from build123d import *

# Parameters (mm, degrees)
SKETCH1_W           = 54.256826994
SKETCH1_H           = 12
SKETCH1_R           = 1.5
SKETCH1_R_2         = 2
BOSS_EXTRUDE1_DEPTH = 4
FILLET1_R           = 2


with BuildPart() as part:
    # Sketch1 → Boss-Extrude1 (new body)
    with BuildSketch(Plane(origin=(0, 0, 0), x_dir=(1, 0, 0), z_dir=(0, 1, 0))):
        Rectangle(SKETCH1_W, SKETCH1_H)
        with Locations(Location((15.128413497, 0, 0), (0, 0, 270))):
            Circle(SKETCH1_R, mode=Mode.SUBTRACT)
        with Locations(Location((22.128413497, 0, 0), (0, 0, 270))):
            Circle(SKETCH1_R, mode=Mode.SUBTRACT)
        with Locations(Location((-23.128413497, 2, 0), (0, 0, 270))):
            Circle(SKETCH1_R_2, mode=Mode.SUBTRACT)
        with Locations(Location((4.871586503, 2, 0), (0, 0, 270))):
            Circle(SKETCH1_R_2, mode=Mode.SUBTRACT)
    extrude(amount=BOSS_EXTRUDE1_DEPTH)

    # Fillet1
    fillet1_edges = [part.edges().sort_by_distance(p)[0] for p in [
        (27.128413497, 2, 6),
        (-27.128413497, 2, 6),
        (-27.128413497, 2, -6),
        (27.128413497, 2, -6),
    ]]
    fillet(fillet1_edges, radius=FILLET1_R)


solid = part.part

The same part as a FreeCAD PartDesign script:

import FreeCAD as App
import Part
import Sketcher
from FreeCAD import Vector


def edges_at(feature, points):
    """Names of the edges that pass closest to the given points."""
    edges = feature.Shape.Edges
    near = lambda p: min(range(len(edges)), key=lambda i: edges[i].distToShape(Part.Vertex(*p))[0])
    return sorted({f"Edge{near(p) + 1}" for p in points})


def add_polygon(sketch, points):
    """Adds a closed chain of lines whose ends are joined by coincident constraints."""
    first, n = sketch.GeometryCount, len(points)
    for a, b in zip(points, points[1:] + points[:1]):
        sketch.addGeometry(Part.LineSegment(App.Vector(*a, 0), App.Vector(*b, 0)), False)
    for i in range(n):
        sketch.addConstraint(Sketcher.Constraint("Coincident", first + i, 2, first + (i + 1) % n, 1))

doc = App.newDocument("Part")
params = doc.addObject("Spreadsheet::Sheet", "Params")
for row, (alias, value) in enumerate([
    ("sketch1_diameter", "3 mm"),
    ("sketch1_diameter2", "4 mm"),
    ("sketch1_height", "12 mm"),
    ("pad1_length", "4 mm"),
    ("fillet_radius", "2 mm"),
], start=1):
    params.set(f"A{row}", alias)
    params.set(f"B{row}", "=" + value)
    params.setAlias(f"B{row}", alias)

body = doc.addObject("PartDesign::Body", "Body")

# Sketch on XZ plane
sketch1 = body.newObject("Sketcher::SketchObject", "Sketch")
sketch1.AttachmentSupport = (doc.getObject("XZ_Plane"), [""])
sketch1.MapMode = "FlatFace"
add_polygon(sketch1, [(-27.1, -6), (-27.1, 6), (27.1, 6), (27.1, -6)])  # lines 0-3
sketch1.addGeometry(Part.Circle(Vector(15.1, 0, 0), Vector(0, 0, 1), 1.5), False)  # 4
sketch1.addGeometry(Part.Circle(Vector(22.1, 0, 0), Vector(0, 0, 1), 1.5), False)  # 5
sketch1.addGeometry(Part.Circle(Vector(-23.1, -2, 0), Vector(0, 0, 1), 2), False)  # 6
sketch1.addGeometry(Part.Circle(Vector(4.9, -2, 0), Vector(0, 0, 1), 2), False)  # 7
sketch1.addConstraint([
    Sketcher.Constraint("Vertical", 0),
    Sketcher.Constraint("Horizontal", 1),
    Sketcher.Constraint("Vertical", 2),
    Sketcher.Constraint("Horizontal", 3),
    Sketcher.Constraint("Equal", 4, 5),
    Sketcher.Constraint("Equal", 6, 7),
    Sketcher.Constraint("Symmetric", 0, 2, 2, 2, -1, 1),
    Sketcher.Constraint("PointOnObject", 4, 3, -1),
    Sketcher.Constraint("PointOnObject", 5, 3, -1),
    Sketcher.Constraint("Horizontal", 6, 3, 7, 3),
    Sketcher.Constraint("Diameter", 4, 3.0),
    Sketcher.Constraint("Diameter", 6, 4.0),
    Sketcher.Constraint("DistanceY", 0, 1, 0, 2, 12.0),
    Sketcher.Constraint("DistanceY", 6, 3, -1, 1, 2.0),
    Sketcher.Constraint("DistanceX", 4, 3, 5, 3, 7.0),
    Sketcher.Constraint("DistanceX", 6, 3, 7, 3, 28.0),
    Sketcher.Constraint("DistanceX", 0, 2, 6, 3, 4.0),
    Sketcher.Constraint("DistanceX", 5, 3, 1, 2, 5.0),
    Sketcher.Constraint("DistanceX", 1, 1, 1, 2, 54.256827),
])
sketch1.setExpression("Constraints[14]", "Params.sketch1_diameter")
sketch1.setExpression("Constraints[15]", "Params.sketch1_diameter2")
sketch1.setExpression("Constraints[16]", "Params.sketch1_height")
pad1 = body.newObject("PartDesign::Pad", "Pad")
pad1.Profile = sketch1
pad1.setExpression("Length", "Params.pad1_length")
pad1.Reversed = True
doc.recompute()

fillet = body.newObject("PartDesign::Fillet", "Fillet")
fillet.Base = (pad1, edges_at(pad1, [
    (27.128, 2, 6),
    (-27.128, 2, 6),
    (-27.128, 2, -6),
    (27.128, 2, -6),
]))
fillet.setExpression("Radius", "Params.fillet_radius")

doc.recompute()
